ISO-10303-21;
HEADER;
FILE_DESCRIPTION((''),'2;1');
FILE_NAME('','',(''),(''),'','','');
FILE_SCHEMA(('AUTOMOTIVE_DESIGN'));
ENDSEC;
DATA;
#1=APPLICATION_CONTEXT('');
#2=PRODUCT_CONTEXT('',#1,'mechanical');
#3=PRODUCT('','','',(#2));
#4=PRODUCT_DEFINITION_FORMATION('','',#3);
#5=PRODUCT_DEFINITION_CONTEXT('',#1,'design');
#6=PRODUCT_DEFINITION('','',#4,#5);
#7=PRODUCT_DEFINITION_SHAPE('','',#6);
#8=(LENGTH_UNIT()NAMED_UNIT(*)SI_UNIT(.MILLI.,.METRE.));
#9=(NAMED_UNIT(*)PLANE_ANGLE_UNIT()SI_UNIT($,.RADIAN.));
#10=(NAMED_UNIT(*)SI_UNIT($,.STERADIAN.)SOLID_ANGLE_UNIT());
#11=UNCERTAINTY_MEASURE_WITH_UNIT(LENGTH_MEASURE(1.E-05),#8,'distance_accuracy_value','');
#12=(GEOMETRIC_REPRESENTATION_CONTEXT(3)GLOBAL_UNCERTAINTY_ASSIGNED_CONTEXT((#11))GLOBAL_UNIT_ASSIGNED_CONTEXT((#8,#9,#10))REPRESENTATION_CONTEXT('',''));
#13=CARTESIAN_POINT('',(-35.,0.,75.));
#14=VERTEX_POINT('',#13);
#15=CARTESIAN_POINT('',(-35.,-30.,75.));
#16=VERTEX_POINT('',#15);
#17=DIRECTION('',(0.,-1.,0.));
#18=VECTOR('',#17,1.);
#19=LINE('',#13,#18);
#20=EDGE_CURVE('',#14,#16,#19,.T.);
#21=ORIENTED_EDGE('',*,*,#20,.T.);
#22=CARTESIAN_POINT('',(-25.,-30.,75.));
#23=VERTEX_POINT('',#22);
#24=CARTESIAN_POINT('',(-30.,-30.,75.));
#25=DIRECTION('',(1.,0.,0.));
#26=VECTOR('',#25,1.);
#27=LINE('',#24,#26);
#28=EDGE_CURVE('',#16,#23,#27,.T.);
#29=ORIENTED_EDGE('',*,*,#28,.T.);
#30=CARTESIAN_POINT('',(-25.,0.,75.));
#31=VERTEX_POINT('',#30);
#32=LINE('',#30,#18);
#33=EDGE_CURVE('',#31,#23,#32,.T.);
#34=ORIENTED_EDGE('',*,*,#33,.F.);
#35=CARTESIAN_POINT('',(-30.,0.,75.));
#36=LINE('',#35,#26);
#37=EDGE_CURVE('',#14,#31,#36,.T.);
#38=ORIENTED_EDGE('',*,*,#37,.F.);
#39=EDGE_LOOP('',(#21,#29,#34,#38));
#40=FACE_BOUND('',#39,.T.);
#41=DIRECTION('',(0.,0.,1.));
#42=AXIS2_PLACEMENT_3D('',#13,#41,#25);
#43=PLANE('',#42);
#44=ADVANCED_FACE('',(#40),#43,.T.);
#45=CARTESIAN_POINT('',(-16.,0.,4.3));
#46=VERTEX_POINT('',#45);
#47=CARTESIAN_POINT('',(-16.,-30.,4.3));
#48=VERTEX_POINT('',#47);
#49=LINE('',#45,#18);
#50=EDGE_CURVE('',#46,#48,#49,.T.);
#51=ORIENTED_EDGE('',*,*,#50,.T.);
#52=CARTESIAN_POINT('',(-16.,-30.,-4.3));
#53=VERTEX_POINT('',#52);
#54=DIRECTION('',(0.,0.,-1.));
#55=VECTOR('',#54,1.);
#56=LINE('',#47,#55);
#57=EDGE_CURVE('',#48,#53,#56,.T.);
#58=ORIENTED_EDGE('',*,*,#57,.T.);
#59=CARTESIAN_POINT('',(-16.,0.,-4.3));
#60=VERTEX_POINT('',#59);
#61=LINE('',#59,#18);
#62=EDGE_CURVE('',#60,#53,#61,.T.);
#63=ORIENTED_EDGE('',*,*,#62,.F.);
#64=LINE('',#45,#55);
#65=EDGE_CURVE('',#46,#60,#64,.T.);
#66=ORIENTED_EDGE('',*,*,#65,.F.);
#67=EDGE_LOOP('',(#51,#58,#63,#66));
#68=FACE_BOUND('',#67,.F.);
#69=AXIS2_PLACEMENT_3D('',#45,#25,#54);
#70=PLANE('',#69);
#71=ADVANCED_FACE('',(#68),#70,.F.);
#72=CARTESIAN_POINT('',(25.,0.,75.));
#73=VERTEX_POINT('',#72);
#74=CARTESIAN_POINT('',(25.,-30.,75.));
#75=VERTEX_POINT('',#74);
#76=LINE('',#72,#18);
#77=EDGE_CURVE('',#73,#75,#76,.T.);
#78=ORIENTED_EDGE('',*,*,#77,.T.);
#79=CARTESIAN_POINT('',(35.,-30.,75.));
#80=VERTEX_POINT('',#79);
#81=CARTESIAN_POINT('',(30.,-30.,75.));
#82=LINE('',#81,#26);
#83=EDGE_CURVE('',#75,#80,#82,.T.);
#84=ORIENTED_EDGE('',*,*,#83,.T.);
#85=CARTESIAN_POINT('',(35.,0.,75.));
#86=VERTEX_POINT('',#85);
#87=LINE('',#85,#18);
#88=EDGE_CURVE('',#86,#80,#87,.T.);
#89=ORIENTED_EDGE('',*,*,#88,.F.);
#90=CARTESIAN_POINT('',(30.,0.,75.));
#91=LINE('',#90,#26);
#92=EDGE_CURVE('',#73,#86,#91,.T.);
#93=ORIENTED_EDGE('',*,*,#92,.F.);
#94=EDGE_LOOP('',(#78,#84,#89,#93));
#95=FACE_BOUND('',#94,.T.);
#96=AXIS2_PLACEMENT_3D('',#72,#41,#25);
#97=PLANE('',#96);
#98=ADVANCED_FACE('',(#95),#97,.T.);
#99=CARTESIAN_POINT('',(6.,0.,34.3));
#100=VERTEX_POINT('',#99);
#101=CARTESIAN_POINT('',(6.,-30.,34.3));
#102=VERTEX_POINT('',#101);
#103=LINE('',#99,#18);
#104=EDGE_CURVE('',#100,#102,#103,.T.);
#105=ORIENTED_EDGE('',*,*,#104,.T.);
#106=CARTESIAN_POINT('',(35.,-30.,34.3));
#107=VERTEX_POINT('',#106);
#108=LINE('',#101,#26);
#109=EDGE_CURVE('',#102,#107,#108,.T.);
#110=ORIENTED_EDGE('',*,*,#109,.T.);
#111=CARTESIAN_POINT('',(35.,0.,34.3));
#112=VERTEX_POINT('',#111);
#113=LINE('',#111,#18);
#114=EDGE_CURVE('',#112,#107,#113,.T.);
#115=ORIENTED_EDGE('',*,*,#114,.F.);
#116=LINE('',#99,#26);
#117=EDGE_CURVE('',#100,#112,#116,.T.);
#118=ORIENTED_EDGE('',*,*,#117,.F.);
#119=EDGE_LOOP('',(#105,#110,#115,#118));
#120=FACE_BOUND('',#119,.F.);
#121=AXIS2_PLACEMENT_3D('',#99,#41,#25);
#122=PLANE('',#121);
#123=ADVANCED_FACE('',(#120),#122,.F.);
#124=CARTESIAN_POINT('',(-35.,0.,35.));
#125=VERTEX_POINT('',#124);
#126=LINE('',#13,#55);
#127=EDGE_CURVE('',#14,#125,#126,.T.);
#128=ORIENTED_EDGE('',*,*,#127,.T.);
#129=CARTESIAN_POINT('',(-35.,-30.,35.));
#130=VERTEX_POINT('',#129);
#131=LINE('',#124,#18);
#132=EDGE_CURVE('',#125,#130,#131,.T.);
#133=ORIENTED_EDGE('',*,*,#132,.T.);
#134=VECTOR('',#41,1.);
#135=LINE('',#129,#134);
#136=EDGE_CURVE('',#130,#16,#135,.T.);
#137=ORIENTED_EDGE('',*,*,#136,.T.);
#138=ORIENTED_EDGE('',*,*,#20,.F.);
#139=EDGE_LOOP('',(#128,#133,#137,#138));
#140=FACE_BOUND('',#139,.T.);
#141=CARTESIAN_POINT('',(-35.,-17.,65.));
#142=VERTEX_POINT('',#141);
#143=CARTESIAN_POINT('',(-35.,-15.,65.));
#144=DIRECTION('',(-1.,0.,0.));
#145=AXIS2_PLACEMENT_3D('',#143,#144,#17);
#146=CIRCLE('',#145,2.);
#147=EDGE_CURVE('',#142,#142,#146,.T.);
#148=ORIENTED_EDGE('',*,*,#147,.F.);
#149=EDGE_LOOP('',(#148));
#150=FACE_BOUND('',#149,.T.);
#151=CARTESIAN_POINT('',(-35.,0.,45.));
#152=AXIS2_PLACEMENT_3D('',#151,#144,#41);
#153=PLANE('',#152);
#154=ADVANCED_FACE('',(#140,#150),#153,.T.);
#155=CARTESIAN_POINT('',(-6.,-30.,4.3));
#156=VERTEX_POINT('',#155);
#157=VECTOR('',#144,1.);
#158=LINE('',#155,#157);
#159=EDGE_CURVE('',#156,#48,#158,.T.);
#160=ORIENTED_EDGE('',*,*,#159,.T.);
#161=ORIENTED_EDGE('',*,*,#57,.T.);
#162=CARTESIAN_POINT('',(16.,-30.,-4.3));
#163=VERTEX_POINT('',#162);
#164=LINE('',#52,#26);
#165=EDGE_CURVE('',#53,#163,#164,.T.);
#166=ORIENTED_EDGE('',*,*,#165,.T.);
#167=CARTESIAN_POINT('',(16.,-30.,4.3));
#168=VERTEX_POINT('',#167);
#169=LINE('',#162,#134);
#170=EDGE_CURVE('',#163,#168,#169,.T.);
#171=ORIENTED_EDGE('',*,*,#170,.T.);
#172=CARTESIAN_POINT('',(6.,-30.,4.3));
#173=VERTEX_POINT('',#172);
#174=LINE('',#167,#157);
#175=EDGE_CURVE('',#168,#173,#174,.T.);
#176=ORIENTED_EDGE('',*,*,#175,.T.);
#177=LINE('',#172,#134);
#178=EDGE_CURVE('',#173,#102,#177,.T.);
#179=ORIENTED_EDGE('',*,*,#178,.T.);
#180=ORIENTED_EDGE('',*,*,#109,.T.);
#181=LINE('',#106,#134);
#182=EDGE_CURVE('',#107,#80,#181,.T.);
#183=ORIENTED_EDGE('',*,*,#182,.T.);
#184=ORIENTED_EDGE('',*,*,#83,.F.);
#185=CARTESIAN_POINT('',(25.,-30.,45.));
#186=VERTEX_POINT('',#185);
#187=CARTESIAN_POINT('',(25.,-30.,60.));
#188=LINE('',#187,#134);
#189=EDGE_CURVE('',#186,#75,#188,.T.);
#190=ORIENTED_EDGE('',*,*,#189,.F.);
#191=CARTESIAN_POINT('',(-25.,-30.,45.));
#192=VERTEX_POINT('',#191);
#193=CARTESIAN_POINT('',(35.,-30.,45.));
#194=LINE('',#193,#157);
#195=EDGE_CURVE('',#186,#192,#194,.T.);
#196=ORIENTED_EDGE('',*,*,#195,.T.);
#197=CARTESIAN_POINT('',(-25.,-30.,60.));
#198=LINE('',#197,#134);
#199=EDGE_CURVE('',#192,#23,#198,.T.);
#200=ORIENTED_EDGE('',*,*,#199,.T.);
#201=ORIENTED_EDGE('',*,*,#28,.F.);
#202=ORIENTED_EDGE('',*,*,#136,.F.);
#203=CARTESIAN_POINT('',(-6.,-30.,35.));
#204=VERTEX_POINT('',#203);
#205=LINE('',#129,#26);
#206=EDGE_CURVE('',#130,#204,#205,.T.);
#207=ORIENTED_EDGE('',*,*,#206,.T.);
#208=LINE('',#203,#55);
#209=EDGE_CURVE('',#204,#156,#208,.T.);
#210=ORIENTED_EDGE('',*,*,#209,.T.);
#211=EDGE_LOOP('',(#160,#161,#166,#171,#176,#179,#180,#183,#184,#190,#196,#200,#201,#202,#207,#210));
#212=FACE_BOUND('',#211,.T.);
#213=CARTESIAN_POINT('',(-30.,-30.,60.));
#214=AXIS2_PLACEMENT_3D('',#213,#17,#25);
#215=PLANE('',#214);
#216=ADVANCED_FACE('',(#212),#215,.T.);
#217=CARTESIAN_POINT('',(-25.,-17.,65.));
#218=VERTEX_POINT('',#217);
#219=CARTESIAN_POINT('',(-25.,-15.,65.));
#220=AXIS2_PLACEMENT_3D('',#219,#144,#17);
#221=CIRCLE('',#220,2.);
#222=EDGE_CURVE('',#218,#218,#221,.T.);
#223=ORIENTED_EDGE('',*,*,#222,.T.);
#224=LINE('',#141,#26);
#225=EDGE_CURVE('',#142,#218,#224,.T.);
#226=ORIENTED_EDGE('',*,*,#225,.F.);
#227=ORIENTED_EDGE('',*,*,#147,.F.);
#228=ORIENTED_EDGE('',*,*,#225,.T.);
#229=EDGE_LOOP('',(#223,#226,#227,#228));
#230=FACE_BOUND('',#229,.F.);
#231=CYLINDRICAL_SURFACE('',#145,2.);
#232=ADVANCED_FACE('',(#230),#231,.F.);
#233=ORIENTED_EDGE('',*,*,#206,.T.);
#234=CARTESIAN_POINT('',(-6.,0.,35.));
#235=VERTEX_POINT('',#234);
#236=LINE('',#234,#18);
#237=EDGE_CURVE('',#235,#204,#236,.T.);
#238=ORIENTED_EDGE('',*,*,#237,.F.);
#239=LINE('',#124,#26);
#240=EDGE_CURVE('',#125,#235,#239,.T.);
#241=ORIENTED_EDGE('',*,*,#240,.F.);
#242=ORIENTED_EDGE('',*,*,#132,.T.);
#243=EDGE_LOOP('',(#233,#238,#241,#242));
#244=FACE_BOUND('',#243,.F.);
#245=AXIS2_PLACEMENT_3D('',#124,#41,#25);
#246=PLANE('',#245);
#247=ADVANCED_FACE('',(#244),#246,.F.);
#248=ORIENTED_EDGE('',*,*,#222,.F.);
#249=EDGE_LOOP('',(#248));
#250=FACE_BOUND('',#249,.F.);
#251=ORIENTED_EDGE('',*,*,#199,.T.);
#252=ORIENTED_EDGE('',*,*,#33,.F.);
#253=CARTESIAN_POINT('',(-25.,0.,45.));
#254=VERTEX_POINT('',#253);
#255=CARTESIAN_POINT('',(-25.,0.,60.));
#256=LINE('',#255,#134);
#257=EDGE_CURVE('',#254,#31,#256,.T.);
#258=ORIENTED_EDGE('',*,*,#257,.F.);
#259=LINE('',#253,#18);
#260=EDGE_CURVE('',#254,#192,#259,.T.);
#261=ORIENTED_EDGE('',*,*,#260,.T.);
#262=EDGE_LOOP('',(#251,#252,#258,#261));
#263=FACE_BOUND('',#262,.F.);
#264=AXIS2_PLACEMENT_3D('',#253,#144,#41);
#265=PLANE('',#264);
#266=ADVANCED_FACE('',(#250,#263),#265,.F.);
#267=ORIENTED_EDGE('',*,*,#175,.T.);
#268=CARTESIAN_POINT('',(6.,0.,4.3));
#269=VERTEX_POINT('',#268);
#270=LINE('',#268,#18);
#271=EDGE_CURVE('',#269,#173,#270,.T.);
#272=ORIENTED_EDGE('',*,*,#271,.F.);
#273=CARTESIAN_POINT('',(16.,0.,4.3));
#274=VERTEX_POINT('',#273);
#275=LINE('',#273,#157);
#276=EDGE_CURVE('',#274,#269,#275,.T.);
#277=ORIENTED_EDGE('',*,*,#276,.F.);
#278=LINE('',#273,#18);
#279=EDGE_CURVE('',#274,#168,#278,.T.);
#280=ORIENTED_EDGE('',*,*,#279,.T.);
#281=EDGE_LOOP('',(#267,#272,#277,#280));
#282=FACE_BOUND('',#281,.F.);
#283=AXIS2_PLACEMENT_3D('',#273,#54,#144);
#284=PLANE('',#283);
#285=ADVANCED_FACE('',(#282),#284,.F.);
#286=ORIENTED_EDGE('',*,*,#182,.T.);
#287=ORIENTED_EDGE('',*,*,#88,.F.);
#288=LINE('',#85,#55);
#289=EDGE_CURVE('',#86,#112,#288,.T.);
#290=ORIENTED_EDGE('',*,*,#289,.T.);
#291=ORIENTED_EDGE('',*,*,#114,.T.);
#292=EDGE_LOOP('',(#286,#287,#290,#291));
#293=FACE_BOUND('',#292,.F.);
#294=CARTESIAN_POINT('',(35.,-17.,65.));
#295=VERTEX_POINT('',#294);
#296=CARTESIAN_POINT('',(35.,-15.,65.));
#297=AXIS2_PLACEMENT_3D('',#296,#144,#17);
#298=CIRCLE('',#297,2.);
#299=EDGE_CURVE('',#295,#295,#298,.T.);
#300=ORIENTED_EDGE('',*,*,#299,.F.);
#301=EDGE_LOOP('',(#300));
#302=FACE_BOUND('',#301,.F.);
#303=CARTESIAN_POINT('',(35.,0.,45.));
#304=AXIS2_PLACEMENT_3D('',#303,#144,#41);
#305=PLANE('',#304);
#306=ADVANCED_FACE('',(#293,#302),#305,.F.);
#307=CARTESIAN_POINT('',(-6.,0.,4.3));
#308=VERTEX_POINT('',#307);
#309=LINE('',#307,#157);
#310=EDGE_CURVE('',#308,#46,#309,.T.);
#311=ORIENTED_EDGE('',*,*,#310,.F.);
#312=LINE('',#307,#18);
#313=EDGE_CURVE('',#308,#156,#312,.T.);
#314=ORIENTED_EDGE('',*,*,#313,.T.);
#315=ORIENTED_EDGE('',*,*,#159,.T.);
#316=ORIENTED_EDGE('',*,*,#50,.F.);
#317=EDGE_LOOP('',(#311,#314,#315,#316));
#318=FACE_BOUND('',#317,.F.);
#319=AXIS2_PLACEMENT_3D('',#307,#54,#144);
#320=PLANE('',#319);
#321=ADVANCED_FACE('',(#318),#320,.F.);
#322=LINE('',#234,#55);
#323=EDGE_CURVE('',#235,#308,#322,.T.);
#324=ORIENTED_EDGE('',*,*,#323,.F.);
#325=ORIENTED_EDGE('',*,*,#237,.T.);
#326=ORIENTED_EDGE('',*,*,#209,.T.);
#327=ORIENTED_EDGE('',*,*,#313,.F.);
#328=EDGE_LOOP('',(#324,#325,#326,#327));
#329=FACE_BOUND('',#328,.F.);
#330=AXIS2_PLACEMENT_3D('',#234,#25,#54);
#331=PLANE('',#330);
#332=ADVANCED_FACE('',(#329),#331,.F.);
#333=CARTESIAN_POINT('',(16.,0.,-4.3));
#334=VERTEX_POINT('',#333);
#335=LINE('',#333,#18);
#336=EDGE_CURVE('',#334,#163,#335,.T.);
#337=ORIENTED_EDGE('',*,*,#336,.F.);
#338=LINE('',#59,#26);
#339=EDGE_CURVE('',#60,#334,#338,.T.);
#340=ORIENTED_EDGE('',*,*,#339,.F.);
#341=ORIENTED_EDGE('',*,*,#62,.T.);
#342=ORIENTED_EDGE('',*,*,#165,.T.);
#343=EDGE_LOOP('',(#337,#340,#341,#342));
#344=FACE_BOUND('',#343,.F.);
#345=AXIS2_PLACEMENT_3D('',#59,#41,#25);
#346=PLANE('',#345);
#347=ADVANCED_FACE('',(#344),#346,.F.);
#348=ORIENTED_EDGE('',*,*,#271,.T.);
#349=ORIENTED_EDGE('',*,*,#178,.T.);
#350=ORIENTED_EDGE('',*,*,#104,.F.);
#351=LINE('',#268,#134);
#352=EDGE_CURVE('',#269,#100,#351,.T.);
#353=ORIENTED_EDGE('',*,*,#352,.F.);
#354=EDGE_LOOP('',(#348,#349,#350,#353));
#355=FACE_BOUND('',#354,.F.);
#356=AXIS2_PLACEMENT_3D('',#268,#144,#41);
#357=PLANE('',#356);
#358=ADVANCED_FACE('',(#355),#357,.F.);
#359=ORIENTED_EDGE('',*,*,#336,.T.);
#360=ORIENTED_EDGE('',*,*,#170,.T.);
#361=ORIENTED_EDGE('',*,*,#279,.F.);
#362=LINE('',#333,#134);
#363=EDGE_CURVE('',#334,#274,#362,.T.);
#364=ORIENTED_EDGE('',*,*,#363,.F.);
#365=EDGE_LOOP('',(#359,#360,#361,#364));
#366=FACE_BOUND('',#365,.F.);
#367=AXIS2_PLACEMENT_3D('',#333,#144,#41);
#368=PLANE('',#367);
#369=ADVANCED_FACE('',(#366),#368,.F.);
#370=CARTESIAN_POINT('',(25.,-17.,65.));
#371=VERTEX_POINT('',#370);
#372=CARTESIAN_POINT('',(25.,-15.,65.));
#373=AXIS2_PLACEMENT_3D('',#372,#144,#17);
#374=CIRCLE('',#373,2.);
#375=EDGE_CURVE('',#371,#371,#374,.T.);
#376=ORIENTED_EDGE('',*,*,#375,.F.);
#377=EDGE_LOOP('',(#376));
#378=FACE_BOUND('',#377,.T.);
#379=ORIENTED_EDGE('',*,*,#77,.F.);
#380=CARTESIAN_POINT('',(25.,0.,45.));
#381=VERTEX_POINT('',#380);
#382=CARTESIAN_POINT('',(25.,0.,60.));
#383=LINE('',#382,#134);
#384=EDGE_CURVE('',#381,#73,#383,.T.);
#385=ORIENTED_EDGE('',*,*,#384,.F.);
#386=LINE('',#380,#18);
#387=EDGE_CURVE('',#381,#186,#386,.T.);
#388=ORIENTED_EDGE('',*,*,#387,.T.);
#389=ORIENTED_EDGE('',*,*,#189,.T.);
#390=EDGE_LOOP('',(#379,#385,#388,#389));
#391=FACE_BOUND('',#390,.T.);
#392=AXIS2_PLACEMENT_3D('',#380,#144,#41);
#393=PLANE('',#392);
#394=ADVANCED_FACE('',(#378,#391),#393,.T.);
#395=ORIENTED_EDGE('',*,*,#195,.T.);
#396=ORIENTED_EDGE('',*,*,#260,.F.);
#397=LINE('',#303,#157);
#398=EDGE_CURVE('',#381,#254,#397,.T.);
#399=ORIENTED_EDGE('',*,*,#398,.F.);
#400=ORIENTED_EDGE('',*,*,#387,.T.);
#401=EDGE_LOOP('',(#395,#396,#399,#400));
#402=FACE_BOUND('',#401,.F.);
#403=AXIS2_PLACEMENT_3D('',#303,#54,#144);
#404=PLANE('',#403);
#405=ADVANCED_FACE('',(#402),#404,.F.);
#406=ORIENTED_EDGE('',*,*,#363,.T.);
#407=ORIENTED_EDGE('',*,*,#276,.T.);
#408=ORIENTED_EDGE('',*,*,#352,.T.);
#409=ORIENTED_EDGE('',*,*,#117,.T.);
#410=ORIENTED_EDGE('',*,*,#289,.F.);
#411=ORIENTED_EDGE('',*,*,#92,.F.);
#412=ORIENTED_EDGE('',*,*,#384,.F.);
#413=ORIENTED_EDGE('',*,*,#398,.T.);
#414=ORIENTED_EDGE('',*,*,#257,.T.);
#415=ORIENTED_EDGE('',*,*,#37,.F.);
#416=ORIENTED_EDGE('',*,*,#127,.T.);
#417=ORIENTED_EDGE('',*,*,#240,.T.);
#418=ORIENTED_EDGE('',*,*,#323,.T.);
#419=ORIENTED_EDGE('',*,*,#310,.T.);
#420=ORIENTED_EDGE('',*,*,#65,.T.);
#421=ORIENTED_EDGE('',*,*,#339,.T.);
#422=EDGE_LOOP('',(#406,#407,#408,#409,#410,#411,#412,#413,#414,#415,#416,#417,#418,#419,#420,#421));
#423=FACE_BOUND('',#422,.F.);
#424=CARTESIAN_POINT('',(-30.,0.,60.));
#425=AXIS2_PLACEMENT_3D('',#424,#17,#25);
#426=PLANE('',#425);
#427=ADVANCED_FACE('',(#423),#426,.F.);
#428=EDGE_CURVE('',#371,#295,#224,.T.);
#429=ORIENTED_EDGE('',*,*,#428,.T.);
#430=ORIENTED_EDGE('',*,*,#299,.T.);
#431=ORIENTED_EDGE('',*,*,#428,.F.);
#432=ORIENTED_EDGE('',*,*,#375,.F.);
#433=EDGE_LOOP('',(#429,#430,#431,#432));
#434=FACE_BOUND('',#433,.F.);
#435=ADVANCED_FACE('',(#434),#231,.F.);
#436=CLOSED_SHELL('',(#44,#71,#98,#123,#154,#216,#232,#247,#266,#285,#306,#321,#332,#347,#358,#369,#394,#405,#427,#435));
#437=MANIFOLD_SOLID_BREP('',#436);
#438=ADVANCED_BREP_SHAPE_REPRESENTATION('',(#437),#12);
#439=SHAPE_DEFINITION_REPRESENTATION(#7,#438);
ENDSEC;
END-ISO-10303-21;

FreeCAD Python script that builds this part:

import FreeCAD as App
import Part
import Sketcher

doc = App.newDocument("Part")
body = doc.addObject("PartDesign::Body", "Body")

# Sketch on XZ plane
sketch1 = body.newObject("Sketcher::SketchObject", "Sketch")
sketch1.AttachmentSupport = (doc.getObject("XZ_Plane"), [""])
sketch1.MapMode = "FlatFace"
sketch1.addGeometry([
    Part.LineSegment(App.Vector(-16, -4, 0), App.Vector(16, -4, 0)),  # 0
    Part.LineSegment(App.Vector(16, -4, 0), App.Vector(16, 4, 0)),  # 1
    Part.LineSegment(App.Vector(16, 4, 0), App.Vector(6, 4, 0)),  # 2
    Part.LineSegment(App.Vector(6, 4, 0), App.Vector(6, 34, 0)),  # 3
    Part.LineSegment(App.Vector(6, 34, 0), App.Vector(35, 34, 0)),  # 4
    Part.LineSegment(App.Vector(35, 34, 0), App.Vector(35, 45, 0)),  # 5
    Part.LineSegment(App.Vector(35, 45, 0), App.Vector(-35, 45, 0)),  # 6
    Part.LineSegment(App.Vector(-35, 45, 0), App.Vector(-35, 35, 0)),  # 7
    Part.LineSegment(App.Vector(-35, 35, 0), App.Vector(-6, 35, 0)),  # 8
    Part.LineSegment(App.Vector(-6, 35, 0), App.Vector(-6, 4, 0)),  # 9
    Part.LineSegment(App.Vector(-6, 4, 0), App.Vector(-16, 4, 0)),  # 10
    Part.LineSegment(App.Vector(-16, 4, 0), App.Vector(-16, -4, 0)),  # 11
], False)
sketch1.addConstraint([
    Sketcher.Constraint("Coincident", 0, 2, 1, 1),
    Sketcher.Constraint("Coincident", 1, 2, 2, 1),
    Sketcher.Constraint("Coincident", 2, 2, 3, 1),
    Sketcher.Constraint("Coincident", 3, 2, 4, 1),
    Sketcher.Constraint("Coincident", 4, 2, 5, 1),
    Sketcher.Constraint("Coincident", 5, 2, 6, 1),
    Sketcher.Constraint("Coincident", 6, 2, 7, 1),
    Sketcher.Constraint("Coincident", 7, 2, 8, 1),
    Sketcher.Constraint("Coincident", 8, 2, 9, 1),
    Sketcher.Constraint("Coincident", 9, 2, 10, 1),
    Sketcher.Constraint("Coincident", 10, 2, 11, 1),
    Sketcher.Constraint("Coincident", 11, 2, 0, 1),
    Sketcher.Constraint("Horizontal", 0),
    Sketcher.Constraint("Vertical", 1),
    Sketcher.Constraint("Horizontal", 2),
    Sketcher.Constraint("Vertical", 3),
    Sketcher.Constraint("Horizontal", 4),
    Sketcher.Constraint("Vertical", 5),
    Sketcher.Constraint("Horizontal", 6),
    Sketcher.Constraint("Vertical", 7),
    Sketcher.Constraint("Horizontal", 8),
    Sketcher.Constraint("Vertical", 9),
    Sketcher.Constraint("Horizontal", 10),
    Sketcher.Constraint("Vertical", 11),
    Sketcher.Constraint("Symmetric", 0, 2, 10, 2, -1, 1),
    Sketcher.Constraint("Symmetric", 2, 2, 9, 2, -2),
    Sketcher.Constraint("Equal", 4, 8),
    Sketcher.Constraint("Equal", 10, 7),
    Sketcher.Constraint("DistanceX", 0, 1, 0, 2, 32.0),
    Sketcher.Constraint("DistanceX", 2, 2, 2, 1, 10.0),
    Sketcher.Constraint("DistanceX", 4, 1, 4, 2, 29.0),
    Sketcher.Constraint("DistanceY", 3, 1, 3, 2, 30.0),
    Sketcher.Constraint("DistanceY", 1, 1, 1, 2, 8.6),
    Sketcher.Constraint("DistanceY", 5, 1, 5, 2, 10.7),
])
pad1 = body.newObject("PartDesign::Pad", "Pad")
pad1.Profile = sketch1
pad1.Length = 30

# Sketch on XZ plane
sketch2 = body.newObject("Sketcher::SketchObject", "Sketch001")
sketch2.AttachmentSupport = (doc.getObject("XZ_Plane"), [""])
sketch2.MapMode = "FlatFace"
sketch2.addGeometry([
    Part.LineSegment(App.Vector(25, 75, 0), App.Vector(25, 45, 0)),
    Part.LineSegment(App.Vector(25, 45, 0), App.Vector(35, 45, 0)),
    Part.LineSegment(App.Vector(35, 45, 0), App.Vector(35, 75, 0)),
    Part.LineSegment(App.Vector(35, 75, 0), App.Vector(25, 75, 0)),
], False)
sketch2.addConstraint([
    Sketcher.Constraint("Coincident", 0, 2, 1, 1),
    Sketcher.Constraint("Coincident", 1, 2, 2, 1),
    Sketcher.Constraint("Coincident", 2, 2, 3, 1),
    Sketcher.Constraint("Coincident", 3, 2, 0, 1),
    Sketcher.Constraint("Vertical", 0),
    Sketcher.Constraint("Horizontal", 1),
    Sketcher.Constraint("Vertical", 2),
    Sketcher.Constraint("Horizontal", 3),
    Sketcher.Constraint("DistanceX", 1, 1, 1, 2, 10.0),
    Sketcher.Constraint("DistanceY", 0, 2, 0, 1, 30.0),
    Sketcher.Constraint("DistanceX", -1, 1, 0, 2, 25.0),
    Sketcher.Constraint("DistanceY", -1, 1, 0, 2, 45.0),
])
pad2 = body.newObject("PartDesign::Pad", "Pad001")
pad2.Profile = sketch2
pad2.Length = 30

# Sketch on XZ plane
sketch3 = body.newObject("Sketcher::SketchObject", "Sketch002")
sketch3.AttachmentSupport = (doc.getObject("XZ_Plane"), [""])
sketch3.MapMode = "FlatFace"
sketch3.addGeometry([
    Part.LineSegment(App.Vector(-35, 75, 0), App.Vector(-35, 45, 0)),
    Part.LineSegment(App.Vector(-35, 45, 0), App.Vector(-25, 45, 0)),
    Part.LineSegment(App.Vector(-25, 45, 0), App.Vector(-25, 75, 0)),
    Part.LineSegment(App.Vector(-25, 75, 0), App.Vector(-35, 75, 0)),
], False)
sketch3.addConstraint([
    Sketcher.Constraint("Coincident", 0, 2, 1, 1),
    Sketcher.Constraint("Coincident", 1, 2, 2, 1),
    Sketcher.Constraint("Coincident", 2, 2, 3, 1),
    Sketcher.Constraint("Coincident", 3, 2, 0, 1),
    Sketcher.Constraint("Vertical", 0),
    Sketcher.Constraint("Horizontal", 1),
    Sketcher.Constraint("Vertical", 2),
    Sketcher.Constraint("Horizontal", 3),
    Sketcher.Constraint("DistanceX", 1, 1, 1, 2, 10.0),
    Sketcher.Constraint("DistanceY", 0, 2, 0, 1, 30.0),
    Sketcher.Constraint("DistanceX", 0, 2, -1, 1, 35.0),
    Sketcher.Constraint("DistanceY", -1, 1, 0, 2, 45.0),
])
pad3 = body.newObject("PartDesign::Pad", "Pad002")
pad3.Profile = sketch3
pad3.Length = 30

# Sketch on YZ plane
sketch4 = body.newObject("Sketcher::SketchObject", "Sketch003")
sketch4.AttachmentSupport = (doc.getObject("YZ_Plane"), [""])
sketch4.MapMode = "FlatFace"
sketch4.AttachmentOffset = App.Placement(App.Vector(0, 0, -35), App.Rotation())
sketch4.addGeometry(Part.Circle(App.Vector(-15, 65, 0), App.Vector(0, 0, 1), 2), False)
sketch4.addConstraint([
    Sketcher.Constraint("Diameter", 0, 4.0),
    Sketcher.Constraint("DistanceX", 0, 3, -1, 1, 15.0),
    Sketcher.Constraint("DistanceY", -1, 1, 0, 3, 65.0),
])
pocket1 = body.newObject("PartDesign::Pocket", "Pocket")
pocket1.Profile = sketch4
pocket1.Type = "ThroughAll"
pocket1.Reversed = True

doc.recompute()
